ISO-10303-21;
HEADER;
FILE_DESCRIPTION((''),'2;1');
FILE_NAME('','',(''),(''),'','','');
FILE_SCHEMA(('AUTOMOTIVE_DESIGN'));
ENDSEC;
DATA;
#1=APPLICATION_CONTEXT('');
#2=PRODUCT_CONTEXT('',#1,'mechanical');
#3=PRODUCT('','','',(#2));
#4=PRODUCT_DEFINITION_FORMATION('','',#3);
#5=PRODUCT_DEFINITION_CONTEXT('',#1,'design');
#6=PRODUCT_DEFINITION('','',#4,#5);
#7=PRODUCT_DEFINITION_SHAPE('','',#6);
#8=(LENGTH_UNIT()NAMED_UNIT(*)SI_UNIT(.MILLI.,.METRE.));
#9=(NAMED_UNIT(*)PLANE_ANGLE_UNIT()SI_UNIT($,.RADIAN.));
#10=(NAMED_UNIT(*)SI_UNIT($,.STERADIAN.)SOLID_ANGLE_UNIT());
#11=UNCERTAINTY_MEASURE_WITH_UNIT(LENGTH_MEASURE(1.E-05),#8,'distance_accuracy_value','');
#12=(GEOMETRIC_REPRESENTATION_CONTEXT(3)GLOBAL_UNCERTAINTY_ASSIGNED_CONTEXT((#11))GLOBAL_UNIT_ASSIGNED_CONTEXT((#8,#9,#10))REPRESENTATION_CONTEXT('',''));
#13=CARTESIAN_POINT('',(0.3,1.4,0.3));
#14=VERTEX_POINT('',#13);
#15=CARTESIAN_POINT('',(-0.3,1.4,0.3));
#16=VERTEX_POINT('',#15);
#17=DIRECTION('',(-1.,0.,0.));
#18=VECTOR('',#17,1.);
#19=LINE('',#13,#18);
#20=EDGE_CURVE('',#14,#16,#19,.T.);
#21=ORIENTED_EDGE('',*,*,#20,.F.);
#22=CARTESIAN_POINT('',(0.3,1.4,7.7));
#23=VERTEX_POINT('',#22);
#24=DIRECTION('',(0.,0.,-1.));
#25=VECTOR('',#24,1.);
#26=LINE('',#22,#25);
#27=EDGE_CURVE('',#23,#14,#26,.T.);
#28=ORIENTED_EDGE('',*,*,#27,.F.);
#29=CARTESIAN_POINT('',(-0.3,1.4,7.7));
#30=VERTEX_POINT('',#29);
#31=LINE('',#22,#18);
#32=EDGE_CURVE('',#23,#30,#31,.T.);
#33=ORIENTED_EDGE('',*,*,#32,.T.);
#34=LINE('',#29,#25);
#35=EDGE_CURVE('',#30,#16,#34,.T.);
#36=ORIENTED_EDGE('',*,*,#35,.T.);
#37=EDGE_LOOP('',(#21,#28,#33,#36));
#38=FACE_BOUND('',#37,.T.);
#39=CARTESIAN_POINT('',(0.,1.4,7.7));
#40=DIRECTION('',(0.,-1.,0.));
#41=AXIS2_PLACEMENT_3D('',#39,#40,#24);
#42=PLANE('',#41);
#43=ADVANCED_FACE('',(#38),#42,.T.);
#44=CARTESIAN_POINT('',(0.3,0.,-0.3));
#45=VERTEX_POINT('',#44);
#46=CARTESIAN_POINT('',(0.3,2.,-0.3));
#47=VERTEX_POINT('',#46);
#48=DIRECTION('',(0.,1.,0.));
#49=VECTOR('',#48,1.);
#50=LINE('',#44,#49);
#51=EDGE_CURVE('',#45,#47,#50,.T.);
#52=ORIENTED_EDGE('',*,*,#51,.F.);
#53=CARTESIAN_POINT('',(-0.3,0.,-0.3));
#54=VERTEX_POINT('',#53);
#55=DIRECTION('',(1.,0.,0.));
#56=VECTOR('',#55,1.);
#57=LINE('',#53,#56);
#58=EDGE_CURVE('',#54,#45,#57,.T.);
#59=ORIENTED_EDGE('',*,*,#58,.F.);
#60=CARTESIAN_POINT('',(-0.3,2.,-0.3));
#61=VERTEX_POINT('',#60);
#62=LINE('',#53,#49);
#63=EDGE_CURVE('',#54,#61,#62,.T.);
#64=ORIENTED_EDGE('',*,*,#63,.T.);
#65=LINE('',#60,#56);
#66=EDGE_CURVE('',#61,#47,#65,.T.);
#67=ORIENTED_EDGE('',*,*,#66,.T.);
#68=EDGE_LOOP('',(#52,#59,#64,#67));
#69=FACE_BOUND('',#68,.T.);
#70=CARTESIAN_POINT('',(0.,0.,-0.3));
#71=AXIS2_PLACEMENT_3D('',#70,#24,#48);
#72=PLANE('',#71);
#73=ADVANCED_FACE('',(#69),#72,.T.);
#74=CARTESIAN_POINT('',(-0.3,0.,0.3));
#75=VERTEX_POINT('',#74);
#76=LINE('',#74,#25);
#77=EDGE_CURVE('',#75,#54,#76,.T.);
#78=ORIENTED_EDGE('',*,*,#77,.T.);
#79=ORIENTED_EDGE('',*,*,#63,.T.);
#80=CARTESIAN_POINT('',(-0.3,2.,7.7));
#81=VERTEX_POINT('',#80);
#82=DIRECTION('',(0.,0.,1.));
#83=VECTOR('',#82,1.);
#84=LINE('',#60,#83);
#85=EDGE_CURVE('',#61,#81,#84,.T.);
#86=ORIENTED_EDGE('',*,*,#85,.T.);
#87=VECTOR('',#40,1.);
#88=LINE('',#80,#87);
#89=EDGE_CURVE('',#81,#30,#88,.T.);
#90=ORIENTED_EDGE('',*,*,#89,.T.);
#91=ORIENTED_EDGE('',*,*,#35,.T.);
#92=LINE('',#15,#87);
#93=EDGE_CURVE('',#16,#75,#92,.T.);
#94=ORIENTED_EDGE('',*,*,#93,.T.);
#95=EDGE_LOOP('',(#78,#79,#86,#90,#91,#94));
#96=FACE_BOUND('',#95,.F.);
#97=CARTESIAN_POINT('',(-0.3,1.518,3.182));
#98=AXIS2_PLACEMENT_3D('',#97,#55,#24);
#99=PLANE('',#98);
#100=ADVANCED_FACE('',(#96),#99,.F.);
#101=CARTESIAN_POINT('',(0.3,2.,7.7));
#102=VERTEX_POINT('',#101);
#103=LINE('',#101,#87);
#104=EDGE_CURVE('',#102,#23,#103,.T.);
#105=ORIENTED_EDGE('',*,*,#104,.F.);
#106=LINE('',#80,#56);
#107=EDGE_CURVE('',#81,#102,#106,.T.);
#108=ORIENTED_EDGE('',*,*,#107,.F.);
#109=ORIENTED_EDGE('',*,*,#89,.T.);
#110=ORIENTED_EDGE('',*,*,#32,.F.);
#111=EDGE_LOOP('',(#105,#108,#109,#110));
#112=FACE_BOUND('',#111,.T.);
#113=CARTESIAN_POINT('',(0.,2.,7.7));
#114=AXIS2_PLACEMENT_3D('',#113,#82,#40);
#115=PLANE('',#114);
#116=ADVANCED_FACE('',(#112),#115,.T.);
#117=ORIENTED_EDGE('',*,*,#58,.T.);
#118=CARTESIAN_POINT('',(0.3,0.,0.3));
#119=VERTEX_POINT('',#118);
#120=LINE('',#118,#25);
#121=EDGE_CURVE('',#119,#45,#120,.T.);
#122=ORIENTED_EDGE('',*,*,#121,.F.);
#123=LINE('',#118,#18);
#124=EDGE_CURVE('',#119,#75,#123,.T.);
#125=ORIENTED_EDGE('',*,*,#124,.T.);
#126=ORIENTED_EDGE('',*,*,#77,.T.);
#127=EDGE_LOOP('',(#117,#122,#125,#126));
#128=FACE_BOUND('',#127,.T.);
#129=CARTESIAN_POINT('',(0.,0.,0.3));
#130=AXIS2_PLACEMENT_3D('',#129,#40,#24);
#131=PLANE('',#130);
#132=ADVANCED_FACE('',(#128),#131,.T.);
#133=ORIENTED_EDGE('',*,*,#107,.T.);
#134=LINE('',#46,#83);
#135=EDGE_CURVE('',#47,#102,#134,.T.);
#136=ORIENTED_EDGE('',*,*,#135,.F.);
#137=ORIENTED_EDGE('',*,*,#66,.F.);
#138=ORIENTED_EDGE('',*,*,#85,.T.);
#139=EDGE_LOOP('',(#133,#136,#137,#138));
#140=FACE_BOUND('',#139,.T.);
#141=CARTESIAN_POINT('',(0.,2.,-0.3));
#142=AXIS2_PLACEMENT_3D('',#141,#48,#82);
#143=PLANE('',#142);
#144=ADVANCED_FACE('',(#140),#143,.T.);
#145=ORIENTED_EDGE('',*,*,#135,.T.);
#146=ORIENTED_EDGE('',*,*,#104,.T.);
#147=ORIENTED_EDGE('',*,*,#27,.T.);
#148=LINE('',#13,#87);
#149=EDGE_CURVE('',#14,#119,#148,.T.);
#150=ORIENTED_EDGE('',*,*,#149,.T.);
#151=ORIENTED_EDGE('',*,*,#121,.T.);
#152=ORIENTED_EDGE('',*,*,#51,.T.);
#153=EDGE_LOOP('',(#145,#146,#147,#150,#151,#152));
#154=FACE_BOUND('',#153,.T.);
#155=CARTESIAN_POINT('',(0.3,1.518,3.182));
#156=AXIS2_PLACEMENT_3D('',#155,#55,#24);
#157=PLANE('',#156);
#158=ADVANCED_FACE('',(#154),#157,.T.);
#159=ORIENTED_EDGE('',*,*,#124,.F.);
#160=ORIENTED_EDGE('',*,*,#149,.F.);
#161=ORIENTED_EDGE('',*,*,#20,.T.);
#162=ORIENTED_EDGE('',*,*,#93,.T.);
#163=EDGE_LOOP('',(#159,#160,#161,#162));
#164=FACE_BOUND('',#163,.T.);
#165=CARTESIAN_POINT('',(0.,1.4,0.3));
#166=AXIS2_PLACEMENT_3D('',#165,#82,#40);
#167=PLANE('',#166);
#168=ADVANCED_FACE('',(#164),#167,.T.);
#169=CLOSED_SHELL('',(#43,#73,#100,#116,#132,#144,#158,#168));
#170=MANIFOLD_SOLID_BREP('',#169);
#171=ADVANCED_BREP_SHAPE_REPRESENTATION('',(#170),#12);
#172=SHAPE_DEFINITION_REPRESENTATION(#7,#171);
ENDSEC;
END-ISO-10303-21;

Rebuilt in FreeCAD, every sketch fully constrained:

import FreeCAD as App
import Part
import Sketcher
Q = App.Units.Quantity


def add_polygon(sketch, points):
    """Adds a closed chain of lines whose ends are joined by coincident constraints."""
    first, n = sketch.GeometryCount, len(points)
    for a, b in zip(points, points[1:] + points[:1]):
        sketch.addGeometry(Part.LineSegment(App.Vector(*a, 0), App.Vector(*b, 0)), False)
    for i in range(n):
        sketch.addConstraint(Sketcher.Constraint("Coincident", first + i, 2, first + (i + 1) % n, 1))

doc = App.newDocument("Part")
body = doc.addObject("PartDesign::Body", "Body")

sketch1 = body.newObject("Sketcher::SketchObject", "Sketch")
sketch1.AttachmentSupport = (doc.getObject("YZ_Plane"), [""])
sketch1.MapMode = "FlatFace"
add_polygon(sketch1, [(0, 0.3), (0, -0.3), (2, -0.3), (2, 7.7), (1.4, 7.7), (1.4, 0.3)])
sketch1.addConstraint([
    Sketcher.Constraint("Vertical", 0),
    Sketcher.Constraint("Horizontal", 1),
    Sketcher.Constraint("Vertical", 2),
    Sketcher.Constraint("Horizontal", 3),
    Sketcher.Constraint("Vertical", 4),
    Sketcher.Constraint("Horizontal", 5),
    Sketcher.Constraint("Symmetric", 0, 2, 5, 2, -1, 1),
    Sketcher.Constraint("Equal", 3, 0),
    Sketcher.Constraint("DistanceX", 1, 1, 1, 2, Q("2 mm")),
    Sketcher.Constraint("DistanceY", 2, 1, 2, 2, Q("8 mm")),
    Sketcher.Constraint("DistanceX", 3, 2, 3, 1, Q("0.6 mm")),
])
pad1 = body.newObject("PartDesign::Pad", "Pad")
pad1.Profile = sketch1
pad1.Length = 0.6
pad1.Midplane = True

doc.recompute()
